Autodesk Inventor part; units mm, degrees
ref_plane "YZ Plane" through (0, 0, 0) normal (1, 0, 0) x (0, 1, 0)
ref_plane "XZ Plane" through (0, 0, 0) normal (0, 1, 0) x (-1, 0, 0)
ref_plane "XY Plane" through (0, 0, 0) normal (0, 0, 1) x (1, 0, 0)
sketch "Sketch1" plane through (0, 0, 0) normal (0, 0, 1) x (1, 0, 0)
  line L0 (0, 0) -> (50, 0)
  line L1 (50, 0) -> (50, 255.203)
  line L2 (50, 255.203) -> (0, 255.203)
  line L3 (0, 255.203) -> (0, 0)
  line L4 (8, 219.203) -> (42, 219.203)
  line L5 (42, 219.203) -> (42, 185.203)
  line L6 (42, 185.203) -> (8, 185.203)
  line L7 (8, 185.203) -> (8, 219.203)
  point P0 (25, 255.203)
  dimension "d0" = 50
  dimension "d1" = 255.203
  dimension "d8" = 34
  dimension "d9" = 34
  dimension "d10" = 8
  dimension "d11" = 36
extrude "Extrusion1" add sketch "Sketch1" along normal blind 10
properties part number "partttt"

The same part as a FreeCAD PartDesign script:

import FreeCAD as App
import Part
import Sketcher


def add_polygon(sketch, points):
    """Adds a closed chain of lines whose ends are joined by coincident constraints."""
    first, n = sketch.GeometryCount, len(points)
    for a, b in zip(points, points[1:] + points[:1]):
        sketch.addGeometry(Part.LineSegment(App.Vector(*a, 0), App.Vector(*b, 0)), False)
    for i in range(n):
        sketch.addConstraint(Sketcher.Constraint("Coincident", first + i, 2, first + (i + 1) % n, 1))

doc = App.newDocument("Part")
params = doc.addObject("Spreadsheet::Sheet", "Params")
for row, (alias, value) in enumerate([
    ("sketch1_width", "50 mm"),
    ("sketch1_width2", "34 mm"),
    ("pad1_length", "10 mm"),
], start=1):
    params.set(f"A{row}", alias)
    params.set(f"B{row}", "=" + value)
    params.setAlias(f"B{row}", alias)

body = doc.addObject("PartDesign::Body", "Body")

# Sketch on XY plane
sketch1 = body.newObject("Sketcher::SketchObject", "Sketch")
sketch1.AttachmentSupport = (doc.getObject("XY_Plane"), [""])
sketch1.MapMode = "FlatFace"
add_polygon(sketch1, [(0, 255.203), (0, 0), (50, 0), (50, 255.203)])  # lines 0-3
add_polygon(sketch1, [(8, 185.203), (8, 219.203), (42, 219.203), (42, 185.203)])  # lines 4-7
sketch1.addConstraint([
    Sketcher.Constraint("Vertical", 0),
    Sketcher.Constraint("Horizontal", 1),
    Sketcher.Constraint("Vertical", 2),
    Sketcher.Constraint("Horizontal", 3),
    Sketcher.Constraint("Vertical", 4),
    Sketcher.Constraint("Horizontal", 5),
    Sketcher.Constraint("Vertical", 6),
    Sketcher.Constraint("Horizontal", 7),
    Sketcher.Constraint("Coincident", 0, 2, -1, 1),
    Sketcher.Constraint("Equal", 7, 4),
    Sketcher.Constraint("DistanceX", 1, 1, 1, 2, 50.0),
    Sketcher.Constraint("DistanceX", 5, 1, 5, 2, 34.0),
    Sketcher.Constraint("DistanceX", -1, 1, 4, 2, 8.0),
    Sketcher.Constraint("DistanceY", 4, 2, 3, 2, 36.0),
    Sketcher.Constraint("DistanceY", 0, 2, 0, 1, 255.203),
])
sketch1.setExpression("Constraints[18]", "Params.sketch1_width")
sketch1.setExpression("Constraints[19]", "Params.sketch1_width2")
pad1 = body.newObject("PartDesign::Pad", "Pad")
pad1.Profile = sketch1
pad1.setExpression("Length", "Params.pad1_length")

doc.recompute()
